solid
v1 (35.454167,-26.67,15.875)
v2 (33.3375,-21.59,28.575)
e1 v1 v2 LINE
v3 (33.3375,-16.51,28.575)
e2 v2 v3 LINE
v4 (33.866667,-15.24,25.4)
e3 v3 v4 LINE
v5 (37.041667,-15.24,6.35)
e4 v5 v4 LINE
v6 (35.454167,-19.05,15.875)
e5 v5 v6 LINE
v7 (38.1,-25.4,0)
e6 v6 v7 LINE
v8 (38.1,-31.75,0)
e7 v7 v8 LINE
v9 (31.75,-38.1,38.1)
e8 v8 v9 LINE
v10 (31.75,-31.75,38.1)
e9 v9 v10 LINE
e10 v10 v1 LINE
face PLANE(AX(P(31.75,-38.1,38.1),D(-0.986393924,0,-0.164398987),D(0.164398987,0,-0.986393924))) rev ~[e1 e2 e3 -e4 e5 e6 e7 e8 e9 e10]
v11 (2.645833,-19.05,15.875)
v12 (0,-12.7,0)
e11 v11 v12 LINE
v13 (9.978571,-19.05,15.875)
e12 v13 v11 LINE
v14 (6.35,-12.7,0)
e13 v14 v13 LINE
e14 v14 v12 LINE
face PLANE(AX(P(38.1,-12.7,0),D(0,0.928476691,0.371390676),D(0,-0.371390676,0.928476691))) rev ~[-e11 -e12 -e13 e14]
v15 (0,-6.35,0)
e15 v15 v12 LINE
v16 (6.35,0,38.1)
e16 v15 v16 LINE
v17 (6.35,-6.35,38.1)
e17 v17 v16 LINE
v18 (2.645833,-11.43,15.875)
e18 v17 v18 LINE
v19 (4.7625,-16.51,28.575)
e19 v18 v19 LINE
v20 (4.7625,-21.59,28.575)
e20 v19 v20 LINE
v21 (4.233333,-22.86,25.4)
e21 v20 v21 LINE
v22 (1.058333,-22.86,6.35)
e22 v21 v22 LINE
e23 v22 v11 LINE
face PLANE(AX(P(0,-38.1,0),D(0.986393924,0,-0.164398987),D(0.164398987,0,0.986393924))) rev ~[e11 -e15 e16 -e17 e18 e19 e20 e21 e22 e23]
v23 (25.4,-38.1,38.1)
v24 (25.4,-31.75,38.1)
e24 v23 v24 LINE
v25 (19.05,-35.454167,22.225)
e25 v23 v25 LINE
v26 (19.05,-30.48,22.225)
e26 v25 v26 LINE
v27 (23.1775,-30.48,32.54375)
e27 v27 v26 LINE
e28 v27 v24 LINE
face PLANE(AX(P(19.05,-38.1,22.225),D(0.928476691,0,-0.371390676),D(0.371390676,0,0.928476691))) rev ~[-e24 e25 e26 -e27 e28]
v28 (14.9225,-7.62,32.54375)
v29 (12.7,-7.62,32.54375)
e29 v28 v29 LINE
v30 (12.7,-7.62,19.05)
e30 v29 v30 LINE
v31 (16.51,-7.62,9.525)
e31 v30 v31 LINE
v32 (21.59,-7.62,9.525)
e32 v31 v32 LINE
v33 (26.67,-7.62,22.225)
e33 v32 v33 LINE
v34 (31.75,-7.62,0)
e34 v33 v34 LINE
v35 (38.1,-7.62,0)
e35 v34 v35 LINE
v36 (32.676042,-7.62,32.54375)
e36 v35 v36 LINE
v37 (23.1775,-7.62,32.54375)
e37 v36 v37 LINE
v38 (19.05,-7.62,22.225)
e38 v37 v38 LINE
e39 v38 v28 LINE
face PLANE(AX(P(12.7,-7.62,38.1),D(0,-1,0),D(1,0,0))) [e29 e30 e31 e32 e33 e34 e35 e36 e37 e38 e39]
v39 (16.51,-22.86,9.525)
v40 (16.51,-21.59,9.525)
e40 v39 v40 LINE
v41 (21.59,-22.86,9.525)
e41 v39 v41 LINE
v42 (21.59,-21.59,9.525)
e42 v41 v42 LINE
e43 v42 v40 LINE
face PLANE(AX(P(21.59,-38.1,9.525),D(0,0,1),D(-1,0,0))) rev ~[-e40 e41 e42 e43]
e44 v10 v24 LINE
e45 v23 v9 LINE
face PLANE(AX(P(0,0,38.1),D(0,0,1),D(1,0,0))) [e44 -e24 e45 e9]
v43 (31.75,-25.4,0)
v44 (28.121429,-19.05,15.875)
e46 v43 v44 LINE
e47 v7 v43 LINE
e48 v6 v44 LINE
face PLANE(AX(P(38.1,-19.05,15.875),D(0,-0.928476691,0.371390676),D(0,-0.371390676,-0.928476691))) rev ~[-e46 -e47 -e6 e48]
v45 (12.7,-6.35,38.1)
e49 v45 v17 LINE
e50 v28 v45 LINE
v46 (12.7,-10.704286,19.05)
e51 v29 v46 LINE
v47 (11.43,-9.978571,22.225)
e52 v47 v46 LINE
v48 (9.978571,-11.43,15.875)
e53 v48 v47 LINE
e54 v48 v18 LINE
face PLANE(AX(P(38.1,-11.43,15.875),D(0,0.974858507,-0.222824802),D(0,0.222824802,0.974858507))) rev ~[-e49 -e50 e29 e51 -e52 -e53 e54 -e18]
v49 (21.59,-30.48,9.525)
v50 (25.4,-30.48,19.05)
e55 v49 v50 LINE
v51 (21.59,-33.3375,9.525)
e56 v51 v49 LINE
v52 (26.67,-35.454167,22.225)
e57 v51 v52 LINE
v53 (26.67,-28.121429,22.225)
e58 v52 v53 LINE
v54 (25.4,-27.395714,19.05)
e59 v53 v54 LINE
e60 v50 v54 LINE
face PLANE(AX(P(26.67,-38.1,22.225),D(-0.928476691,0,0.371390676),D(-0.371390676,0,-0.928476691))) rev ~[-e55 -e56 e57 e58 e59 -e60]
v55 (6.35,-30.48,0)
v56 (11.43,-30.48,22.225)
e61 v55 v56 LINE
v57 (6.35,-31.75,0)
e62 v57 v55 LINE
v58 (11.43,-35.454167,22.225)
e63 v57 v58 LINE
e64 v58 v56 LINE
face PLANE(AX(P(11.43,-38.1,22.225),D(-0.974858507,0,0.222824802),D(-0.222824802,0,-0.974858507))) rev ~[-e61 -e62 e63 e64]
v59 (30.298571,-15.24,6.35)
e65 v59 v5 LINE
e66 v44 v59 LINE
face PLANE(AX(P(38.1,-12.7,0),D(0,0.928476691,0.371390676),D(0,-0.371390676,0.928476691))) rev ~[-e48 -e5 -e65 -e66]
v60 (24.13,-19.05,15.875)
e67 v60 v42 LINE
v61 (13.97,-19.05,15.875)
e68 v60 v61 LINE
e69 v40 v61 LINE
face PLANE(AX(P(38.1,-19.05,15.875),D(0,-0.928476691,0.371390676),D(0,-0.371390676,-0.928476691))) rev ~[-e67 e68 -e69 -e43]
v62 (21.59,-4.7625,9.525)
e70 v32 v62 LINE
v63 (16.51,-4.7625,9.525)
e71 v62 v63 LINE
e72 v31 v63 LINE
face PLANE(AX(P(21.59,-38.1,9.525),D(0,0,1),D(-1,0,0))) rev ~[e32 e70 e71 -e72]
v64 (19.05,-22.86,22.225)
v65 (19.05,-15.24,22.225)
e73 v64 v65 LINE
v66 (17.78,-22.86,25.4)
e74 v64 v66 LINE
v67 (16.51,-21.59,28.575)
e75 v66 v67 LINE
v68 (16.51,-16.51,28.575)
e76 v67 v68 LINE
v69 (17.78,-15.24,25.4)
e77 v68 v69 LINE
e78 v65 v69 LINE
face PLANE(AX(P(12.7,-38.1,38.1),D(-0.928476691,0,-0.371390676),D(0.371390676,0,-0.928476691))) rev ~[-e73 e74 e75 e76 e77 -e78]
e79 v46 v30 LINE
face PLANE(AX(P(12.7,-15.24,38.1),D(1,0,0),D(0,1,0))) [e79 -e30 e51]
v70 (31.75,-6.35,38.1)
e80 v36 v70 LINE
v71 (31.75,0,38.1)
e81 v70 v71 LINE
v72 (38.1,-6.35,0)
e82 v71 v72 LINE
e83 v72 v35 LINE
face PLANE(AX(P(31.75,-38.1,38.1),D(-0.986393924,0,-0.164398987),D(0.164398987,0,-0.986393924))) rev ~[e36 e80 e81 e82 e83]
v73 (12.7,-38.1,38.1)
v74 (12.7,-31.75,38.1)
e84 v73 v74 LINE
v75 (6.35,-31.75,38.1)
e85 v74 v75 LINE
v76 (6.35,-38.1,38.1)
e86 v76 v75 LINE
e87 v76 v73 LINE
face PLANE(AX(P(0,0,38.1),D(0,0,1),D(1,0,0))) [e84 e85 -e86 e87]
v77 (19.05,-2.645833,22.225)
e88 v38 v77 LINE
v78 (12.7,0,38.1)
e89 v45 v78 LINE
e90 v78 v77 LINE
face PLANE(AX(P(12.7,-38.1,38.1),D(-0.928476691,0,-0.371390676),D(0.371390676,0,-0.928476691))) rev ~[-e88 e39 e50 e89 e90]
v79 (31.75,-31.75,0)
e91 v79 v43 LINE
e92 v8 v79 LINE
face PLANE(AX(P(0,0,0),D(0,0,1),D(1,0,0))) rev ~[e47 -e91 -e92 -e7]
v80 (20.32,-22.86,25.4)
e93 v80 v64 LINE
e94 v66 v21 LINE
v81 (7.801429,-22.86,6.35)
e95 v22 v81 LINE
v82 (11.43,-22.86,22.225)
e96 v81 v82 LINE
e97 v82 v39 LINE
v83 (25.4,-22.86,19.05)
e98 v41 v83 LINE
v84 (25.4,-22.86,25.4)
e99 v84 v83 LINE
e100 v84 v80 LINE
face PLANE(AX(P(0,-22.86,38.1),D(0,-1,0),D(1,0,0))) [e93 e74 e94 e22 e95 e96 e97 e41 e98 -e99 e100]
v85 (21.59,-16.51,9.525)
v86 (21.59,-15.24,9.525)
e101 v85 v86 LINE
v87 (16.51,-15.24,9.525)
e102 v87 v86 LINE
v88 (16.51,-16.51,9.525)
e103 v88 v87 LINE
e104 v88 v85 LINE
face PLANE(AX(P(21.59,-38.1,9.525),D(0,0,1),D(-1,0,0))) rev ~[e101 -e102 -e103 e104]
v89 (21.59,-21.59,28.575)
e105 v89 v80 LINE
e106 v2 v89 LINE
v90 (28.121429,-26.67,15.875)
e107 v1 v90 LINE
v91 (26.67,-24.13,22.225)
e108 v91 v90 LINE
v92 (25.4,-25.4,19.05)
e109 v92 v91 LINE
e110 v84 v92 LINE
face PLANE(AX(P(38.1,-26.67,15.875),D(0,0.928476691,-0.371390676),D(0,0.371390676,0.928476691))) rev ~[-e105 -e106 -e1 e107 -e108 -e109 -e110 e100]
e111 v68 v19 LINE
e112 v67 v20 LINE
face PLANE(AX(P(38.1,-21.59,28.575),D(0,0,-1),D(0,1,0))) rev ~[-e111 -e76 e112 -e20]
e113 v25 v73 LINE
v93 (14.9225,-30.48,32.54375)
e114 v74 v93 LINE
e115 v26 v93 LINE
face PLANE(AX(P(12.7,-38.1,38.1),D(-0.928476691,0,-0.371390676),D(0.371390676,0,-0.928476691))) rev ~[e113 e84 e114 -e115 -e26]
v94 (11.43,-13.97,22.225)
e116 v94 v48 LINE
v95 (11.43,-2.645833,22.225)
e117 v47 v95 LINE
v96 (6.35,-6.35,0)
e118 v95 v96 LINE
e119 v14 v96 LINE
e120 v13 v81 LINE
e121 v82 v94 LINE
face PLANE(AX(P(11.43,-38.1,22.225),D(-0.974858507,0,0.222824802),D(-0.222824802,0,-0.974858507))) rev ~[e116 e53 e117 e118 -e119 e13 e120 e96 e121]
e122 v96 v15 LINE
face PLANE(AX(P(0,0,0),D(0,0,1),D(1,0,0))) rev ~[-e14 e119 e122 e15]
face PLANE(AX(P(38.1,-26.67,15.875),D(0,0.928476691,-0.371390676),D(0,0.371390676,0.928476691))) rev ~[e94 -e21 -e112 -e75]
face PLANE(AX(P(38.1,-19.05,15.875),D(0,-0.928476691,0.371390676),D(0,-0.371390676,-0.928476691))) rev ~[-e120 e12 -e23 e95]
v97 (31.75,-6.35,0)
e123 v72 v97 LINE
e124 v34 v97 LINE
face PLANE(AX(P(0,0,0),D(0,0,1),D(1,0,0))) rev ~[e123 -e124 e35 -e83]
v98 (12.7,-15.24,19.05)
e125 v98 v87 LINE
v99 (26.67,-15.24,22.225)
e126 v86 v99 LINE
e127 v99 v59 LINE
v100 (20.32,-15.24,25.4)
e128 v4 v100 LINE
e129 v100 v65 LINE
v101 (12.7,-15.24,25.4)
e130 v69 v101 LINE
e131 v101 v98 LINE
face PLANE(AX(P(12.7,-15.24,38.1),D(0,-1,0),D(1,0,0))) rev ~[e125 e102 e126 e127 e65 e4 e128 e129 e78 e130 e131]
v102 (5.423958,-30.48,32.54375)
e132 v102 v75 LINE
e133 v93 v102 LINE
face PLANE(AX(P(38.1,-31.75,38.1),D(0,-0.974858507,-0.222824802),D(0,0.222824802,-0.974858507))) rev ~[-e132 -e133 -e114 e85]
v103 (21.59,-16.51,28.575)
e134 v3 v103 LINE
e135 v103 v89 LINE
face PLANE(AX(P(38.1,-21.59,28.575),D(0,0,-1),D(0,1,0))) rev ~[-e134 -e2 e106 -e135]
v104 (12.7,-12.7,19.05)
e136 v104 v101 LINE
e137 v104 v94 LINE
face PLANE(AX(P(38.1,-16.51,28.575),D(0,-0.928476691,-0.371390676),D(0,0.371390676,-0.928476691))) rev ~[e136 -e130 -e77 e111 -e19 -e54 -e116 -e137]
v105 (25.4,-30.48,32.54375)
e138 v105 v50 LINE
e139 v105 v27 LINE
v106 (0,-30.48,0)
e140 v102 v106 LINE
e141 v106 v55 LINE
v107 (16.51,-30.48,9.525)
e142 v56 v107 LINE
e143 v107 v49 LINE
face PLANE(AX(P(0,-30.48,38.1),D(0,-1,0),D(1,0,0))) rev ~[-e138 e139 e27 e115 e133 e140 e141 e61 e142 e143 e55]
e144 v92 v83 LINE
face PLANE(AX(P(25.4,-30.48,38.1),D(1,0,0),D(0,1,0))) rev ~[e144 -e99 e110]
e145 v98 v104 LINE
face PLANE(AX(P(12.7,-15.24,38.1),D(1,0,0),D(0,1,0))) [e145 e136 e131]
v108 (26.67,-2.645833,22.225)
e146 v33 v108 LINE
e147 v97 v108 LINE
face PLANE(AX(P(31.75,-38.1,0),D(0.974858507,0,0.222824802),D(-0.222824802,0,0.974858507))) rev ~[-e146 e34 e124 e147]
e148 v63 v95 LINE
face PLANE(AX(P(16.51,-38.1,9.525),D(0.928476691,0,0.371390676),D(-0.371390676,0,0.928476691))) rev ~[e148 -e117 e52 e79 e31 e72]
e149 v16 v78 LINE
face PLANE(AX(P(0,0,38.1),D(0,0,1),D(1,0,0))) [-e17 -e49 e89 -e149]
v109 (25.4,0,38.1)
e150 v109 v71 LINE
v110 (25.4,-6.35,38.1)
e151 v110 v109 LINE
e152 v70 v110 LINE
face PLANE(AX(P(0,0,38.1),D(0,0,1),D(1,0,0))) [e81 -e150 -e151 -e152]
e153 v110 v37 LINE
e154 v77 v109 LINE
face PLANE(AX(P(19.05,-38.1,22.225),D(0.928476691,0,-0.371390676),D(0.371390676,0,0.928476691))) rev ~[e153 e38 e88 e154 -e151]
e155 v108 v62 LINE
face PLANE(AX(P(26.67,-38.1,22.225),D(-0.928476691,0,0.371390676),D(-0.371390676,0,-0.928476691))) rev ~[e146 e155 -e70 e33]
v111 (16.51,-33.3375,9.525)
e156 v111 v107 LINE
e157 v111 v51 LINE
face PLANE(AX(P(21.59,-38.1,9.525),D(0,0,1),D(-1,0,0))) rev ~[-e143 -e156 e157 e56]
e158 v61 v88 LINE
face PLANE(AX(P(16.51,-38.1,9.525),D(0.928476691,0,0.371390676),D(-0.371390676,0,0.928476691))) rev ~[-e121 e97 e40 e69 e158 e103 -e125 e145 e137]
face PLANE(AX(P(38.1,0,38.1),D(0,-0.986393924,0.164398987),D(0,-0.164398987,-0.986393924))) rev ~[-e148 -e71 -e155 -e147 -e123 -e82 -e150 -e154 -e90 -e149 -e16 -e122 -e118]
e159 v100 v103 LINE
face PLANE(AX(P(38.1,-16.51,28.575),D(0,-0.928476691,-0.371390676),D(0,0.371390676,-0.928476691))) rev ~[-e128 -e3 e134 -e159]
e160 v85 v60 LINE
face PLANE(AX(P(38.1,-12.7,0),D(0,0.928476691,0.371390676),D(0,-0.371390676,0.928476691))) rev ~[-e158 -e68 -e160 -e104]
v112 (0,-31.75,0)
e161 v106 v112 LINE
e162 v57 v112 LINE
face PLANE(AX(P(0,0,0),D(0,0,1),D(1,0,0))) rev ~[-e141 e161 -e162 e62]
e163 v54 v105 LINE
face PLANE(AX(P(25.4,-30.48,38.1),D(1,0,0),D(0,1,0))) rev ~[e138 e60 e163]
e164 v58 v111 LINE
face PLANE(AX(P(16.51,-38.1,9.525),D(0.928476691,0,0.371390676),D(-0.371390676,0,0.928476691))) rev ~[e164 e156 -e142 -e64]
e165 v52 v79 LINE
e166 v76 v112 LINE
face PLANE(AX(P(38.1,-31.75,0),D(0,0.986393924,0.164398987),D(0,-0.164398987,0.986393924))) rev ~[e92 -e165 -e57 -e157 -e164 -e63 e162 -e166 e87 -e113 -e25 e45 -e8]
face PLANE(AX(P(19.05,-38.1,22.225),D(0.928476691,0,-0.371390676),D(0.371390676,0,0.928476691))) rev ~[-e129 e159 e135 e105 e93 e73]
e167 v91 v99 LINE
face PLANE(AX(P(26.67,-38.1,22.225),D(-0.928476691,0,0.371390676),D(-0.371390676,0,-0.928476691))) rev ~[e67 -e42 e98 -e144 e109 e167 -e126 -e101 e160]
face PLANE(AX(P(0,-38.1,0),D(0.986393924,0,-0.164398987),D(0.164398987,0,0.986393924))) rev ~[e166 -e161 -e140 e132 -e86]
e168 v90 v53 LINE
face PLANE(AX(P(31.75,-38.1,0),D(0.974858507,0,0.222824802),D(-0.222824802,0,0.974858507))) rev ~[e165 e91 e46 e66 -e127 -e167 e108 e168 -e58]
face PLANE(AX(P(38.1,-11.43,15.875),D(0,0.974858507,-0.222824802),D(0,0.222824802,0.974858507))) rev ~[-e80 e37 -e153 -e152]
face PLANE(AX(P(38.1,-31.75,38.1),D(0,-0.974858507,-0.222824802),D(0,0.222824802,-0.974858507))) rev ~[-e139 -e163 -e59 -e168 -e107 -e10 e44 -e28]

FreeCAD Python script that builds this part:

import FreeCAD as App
import Part
import Sketcher
from FreeCAD import Vector
Q = App.Units.Quantity


def add_polygon(sketch, points):
    """Adds a closed chain of lines whose ends are joined by coincident constraints."""
    first, n = sketch.GeometryCount, len(points)
    for a, b in zip(points, points[1:] + points[:1]):
        sketch.addGeometry(Part.LineSegment(App.Vector(*a, 0), App.Vector(*b, 0)), False)
    for i in range(n):
        sketch.addConstraint(Sketcher.Constraint("Coincident", first + i, 2, first + (i + 1) % n, 1))

doc = App.newDocument("Part")
body = doc.addObject("PartDesign::Body", "Body")

sketch1 = body.newObject("Sketcher::SketchObject", "Sketch")
sketch1.AttachmentSupport = (doc.getObject("XZ_Plane"), [""])
sketch1.MapMode = "FlatFace"
add_polygon(sketch1, [(0, 38), (0, 0), (38, 0), (38, 38)])
sketch1.addConstraint(Sketcher.Constraint("Vertical", 0))
sketch1.addConstraint(Sketcher.Constraint("Horizontal", 1))
sketch1.addConstraint(Sketcher.Constraint("Vertical", 2))
sketch1.addConstraint(Sketcher.Constraint("Horizontal", 3))
sketch1.addConstraint(Sketcher.Constraint("Coincident", 0, 2, -1, 1))
sketch1.addConstraint(Sketcher.Constraint("Equal", 3, 0))
sketch1.addConstraint(Sketcher.Constraint("DistanceX", 1, 1, 1, 2, Q("1.5 in")))
pad1 = body.newObject("PartDesign::Pad", "Pad")
pad1.Profile = sketch1
pad1.Length = Q("1.5 in")

sketch2 = body.newObject("Sketcher::SketchObject", "Sketch001")
sketch2.AttachmentSupport = (doc.getObject("YZ_Plane"), [""])
sketch2.MapMode = "FlatFace"
sketch2.AttachmentOffset = App.Placement(Vector(0, 0, 1.5 * 25.4), App.Rotation())
add_polygon(sketch2, [(-6, 0), (0, 0), (0, 38)])
add_polygon(sketch2, [(-25, 0), (-13, 0), (-19, 16)])
add_polygon(sketch2, [(-38, 0), (-32, 0), (-38, 38)])
add_polygon(sketch2, [(-11, 16), (-6, 38), (-32, 38), (-27, 16), (-22, 29), (-17, 29)])
sketch2.addConstraint(Sketcher.Constraint("Horizontal", 0))
sketch2.addConstraint(Sketcher.Constraint("Vertical", 1))
sketch2.addConstraint(Sketcher.Constraint("Horizontal", 3))
sketch2.addConstraint(Sketcher.Constraint("Horizontal", 6))
sketch2.addConstraint(Sketcher.Constraint("Vertical", 8))
sketch2.addConstraint(Sketcher.Constraint("Horizontal", 10))
sketch2.addConstraint(Sketcher.Constraint("Horizontal", 13))
sketch2.addConstraint(Sketcher.Constraint("Coincident", 0, 2, -1, 1))
sketch2.addConstraint(Sketcher.Constraint("PointOnObject", 3, 2, -1))
sketch2.addConstraint(Sketcher.Constraint("PointOnObject", 6, 2, -1))
sketch2.addConstraint(Sketcher.Constraint("Parallel", 5, 12))
sketch2.addConstraint(Sketcher.Constraint("Parallel", 4, 14))
sketch2.addConstraint(Sketcher.Constraint("Horizontal", 1, 2, 7, 2))
sketch2.addConstraint(Sketcher.Constraint("Horizontal", 7, 2, 9, 2))
sketch2.addConstraint(Sketcher.Constraint("Horizontal", 4, 2, 11, 2))
sketch2.addConstraint(Sketcher.Constraint("Horizontal", 11, 2, 14, 2))
sketch2.addConstraint(Sketcher.Constraint("Vertical", 2, 2, 9, 2))
sketch2.addConstraint(Sketcher.Constraint("Vertical", 6, 2, 10, 2))
sketch2.addConstraint(Sketcher.Constraint("Equal", 0, 6))
sketch2.addConstraint(Sketcher.Constraint("Equal", 4, 5))
sketch2.addConstraint(Sketcher.Constraint("Equal", 9, 11))
sketch2.addConstraint(Sketcher.Constraint("DistanceX", 10, 2, 10, 1, Q("1 in")))
sketch2.addConstraint(Sketcher.Constraint("DistanceX", 3, 1, 3, 2, Q("0.5 in")))
sketch2.addConstraint(Sketcher.Constraint("DistanceX", 13, 1, 13, 2, Q("0.2 in")))
sketch2.addConstraint(Sketcher.Constraint("DistanceY", 1, 1, 1, 2, Q("1.5 in")))
sketch2.addConstraint(Sketcher.Constraint("DistanceX", 5, 2, -1, 1, Q("1 in")))
sketch2.addConstraint(Sketcher.Constraint("DistanceX", 7, 2, 3, 2, Q("1 in")))
sketch2.addConstraint(Sketcher.Constraint("DistanceX", 11, 2, 4, 2, Q("0.3 in")))
sketch2.addConstraint(Sketcher.Constraint("DistanceY", 4, 2, 12, 2, Q("0.5 in")))
pocket1 = body.newObject("PartDesign::Pocket", "Pocket")
pocket1.Profile = sketch2
pocket1.Length = Q("1.5 in")

sketch3 = body.newObject("Sketcher::SketchObject", "Sketch002")
sketch3.AttachmentSupport = (doc.getObject("XZ_Plane"), [""])
sketch3.MapMode = "FlatFace"
sketch3.AttachmentOffset = App.Placement(Vector(0, 0, 1.5 * 25.4), App.Rotation())
add_polygon(sketch3, [(0, 38), (0, 0), (6, 38)])
add_polygon(sketch3, [(11, 22), (6, 0), (32, 0), (27, 22), (22, 10), (17, 10)])
add_polygon(sketch3, [(25, 38), (13, 38), (19, 22)])
add_polygon(sketch3, [(32, 38), (38, 0), (38, 38)])
sketch3.addConstraint(Sketcher.Constraint("Vertical", 0))
sketch3.addConstraint(Sketcher.Constraint("Horizontal", 2))
sketch3.addConstraint(Sketcher.Constraint("Horizontal", 4))
sketch3.addConstraint(Sketcher.Constraint("Horizontal", 7))
sketch3.addConstraint(Sketcher.Constraint("Horizontal", 9))
sketch3.addConstraint(Sketcher.Constraint("Vertical", 13))
sketch3.addConstraint(Sketcher.Constraint("Horizontal", 14))
sketch3.addConstraint(Sketcher.Constraint("Coincident", 0, 2, -1, 1))
sketch3.addConstraint(Sketcher.Constraint("PointOnObject", 3, 2, -1))
sketch3.addConstraint(Sketcher.Constraint("PointOnObject", 12, 2, -1))
sketch3.addConstraint(Sketcher.Constraint("Parallel", 8, 10))
sketch3.addConstraint(Sketcher.Constraint("Parallel", 6, 11))
sketch3.addConstraint(Sketcher.Constraint("Horizontal", 5, 2, 8, 2))
sketch3.addConstraint(Sketcher.Constraint("Horizontal", 2, 2, 9, 2))
sketch3.addConstraint(Sketcher.Constraint("Horizontal", 8, 2, 10, 2))
sketch3.addConstraint(Sketcher.Constraint("Horizontal", 11, 2, 13, 2))
sketch3.addConstraint(Sketcher.Constraint("Vertical", 1, 2, 3, 2))
sketch3.addConstraint(Sketcher.Constraint("Vertical", 4, 2, 14, 2))
sketch3.addConstraint(Sketcher.Constraint("Equal", 2, 14))
sketch3.addConstraint(Sketcher.Constraint("Equal", 3, 5))
sketch3.addConstraint(Sketcher.Constraint("Equal", 6, 8))
sketch3.addConstraint(Sketcher.Constraint("DistanceX", 4, 1, 4, 2, Q("1 in")))
sketch3.addConstraint(Sketcher.Constraint("DistanceX", 7, 2, 7, 1, Q("0.2 in")))
sketch3.addConstraint(Sketcher.Constraint("DistanceX", 9, 2, 9, 1, Q("0.5 in")))
sketch3.addConstraint(Sketcher.Constraint("DistanceY", 0, 2, 0, 1, Q("1.5 in")))
sketch3.addConstraint(Sketcher.Constraint("DistanceX", -1, 1, 11, 2, Q("1 in")))
sketch3.addConstraint(Sketcher.Constraint("DistanceX", 9, 2, 13, 2, Q("1 in")))
sketch3.addConstraint(Sketcher.Constraint("DistanceX", 5, 2, 4, 2, Q("0.2 in")))
sketch3.addConstraint(Sketcher.Constraint("DistanceY", 6, 2, 5, 2, Q("0.5 in")))
pocket2 = body.newObject("PartDesign::Pocket", "Pocket001")
pocket2.Profile = sketch3
pocket2.Length = Q("1.5 in")

sketch4 = body.newObject("Sketcher::SketchObject", "Sketch003")
sketch4.AttachmentSupport = (doc.getObject("XY_Plane"), [""])
sketch4.MapMode = "FlatFace"
sketch4.AttachmentOffset = App.Placement(Vector(0, 0, 1.5 * 25.4), App.Rotation())
add_polygon(sketch4, [(13, -8), (13, -15), (38, -15), (38, -8)])
add_polygon(sketch4, [(0, -23), (0, -30), (25, -30), (25, -23)])
sketch4.addConstraint(Sketcher.Constraint("Vertical", 0))
sketch4.addConstraint(Sketcher.Constraint("Horizontal", 1))
sketch4.addConstraint(Sketcher.Constraint("Vertical", 2))
sketch4.addConstraint(Sketcher.Constraint("Horizontal", 3))
sketch4.addConstraint(Sketcher.Constraint("Vertical", 4))
sketch4.addConstraint(Sketcher.Constraint("Horizontal", 5))
sketch4.addConstraint(Sketcher.Constraint("Vertical", 6))
sketch4.addConstraint(Sketcher.Constraint("Horizontal", 7))
sketch4.addConstraint(Sketcher.Constraint("PointOnObject", 4, 2, -2))
sketch4.addConstraint(Sketcher.Constraint("Equal", 3, 5))
sketch4.addConstraint(Sketcher.Constraint("Equal", 2, 4))
sketch4.addConstraint(Sketcher.Constraint("DistanceX", 1, 1, 1, 2, Q("1 in")))
sketch4.addConstraint(Sketcher.Constraint("DistanceY", 0, 2, 0, 1, Q("0.3 in")))
sketch4.addConstraint(Sketcher.Constraint("DistanceX", -1, 1, 0, 2, Q("0.5 in")))
sketch4.addConstraint(Sketcher.Constraint("DistanceY", 0, 2, -1, 1, Q("0.6 in")))
sketch4.addConstraint(Sketcher.Constraint("DistanceY", 4, 2, -1, 1, Q("1.2 in")))
pocket3 = body.newObject("PartDesign::Pocket", "Pocket002")
pocket3.Profile = sketch4
pocket3.Length = Q("1.5 in")

doc.recompute()
